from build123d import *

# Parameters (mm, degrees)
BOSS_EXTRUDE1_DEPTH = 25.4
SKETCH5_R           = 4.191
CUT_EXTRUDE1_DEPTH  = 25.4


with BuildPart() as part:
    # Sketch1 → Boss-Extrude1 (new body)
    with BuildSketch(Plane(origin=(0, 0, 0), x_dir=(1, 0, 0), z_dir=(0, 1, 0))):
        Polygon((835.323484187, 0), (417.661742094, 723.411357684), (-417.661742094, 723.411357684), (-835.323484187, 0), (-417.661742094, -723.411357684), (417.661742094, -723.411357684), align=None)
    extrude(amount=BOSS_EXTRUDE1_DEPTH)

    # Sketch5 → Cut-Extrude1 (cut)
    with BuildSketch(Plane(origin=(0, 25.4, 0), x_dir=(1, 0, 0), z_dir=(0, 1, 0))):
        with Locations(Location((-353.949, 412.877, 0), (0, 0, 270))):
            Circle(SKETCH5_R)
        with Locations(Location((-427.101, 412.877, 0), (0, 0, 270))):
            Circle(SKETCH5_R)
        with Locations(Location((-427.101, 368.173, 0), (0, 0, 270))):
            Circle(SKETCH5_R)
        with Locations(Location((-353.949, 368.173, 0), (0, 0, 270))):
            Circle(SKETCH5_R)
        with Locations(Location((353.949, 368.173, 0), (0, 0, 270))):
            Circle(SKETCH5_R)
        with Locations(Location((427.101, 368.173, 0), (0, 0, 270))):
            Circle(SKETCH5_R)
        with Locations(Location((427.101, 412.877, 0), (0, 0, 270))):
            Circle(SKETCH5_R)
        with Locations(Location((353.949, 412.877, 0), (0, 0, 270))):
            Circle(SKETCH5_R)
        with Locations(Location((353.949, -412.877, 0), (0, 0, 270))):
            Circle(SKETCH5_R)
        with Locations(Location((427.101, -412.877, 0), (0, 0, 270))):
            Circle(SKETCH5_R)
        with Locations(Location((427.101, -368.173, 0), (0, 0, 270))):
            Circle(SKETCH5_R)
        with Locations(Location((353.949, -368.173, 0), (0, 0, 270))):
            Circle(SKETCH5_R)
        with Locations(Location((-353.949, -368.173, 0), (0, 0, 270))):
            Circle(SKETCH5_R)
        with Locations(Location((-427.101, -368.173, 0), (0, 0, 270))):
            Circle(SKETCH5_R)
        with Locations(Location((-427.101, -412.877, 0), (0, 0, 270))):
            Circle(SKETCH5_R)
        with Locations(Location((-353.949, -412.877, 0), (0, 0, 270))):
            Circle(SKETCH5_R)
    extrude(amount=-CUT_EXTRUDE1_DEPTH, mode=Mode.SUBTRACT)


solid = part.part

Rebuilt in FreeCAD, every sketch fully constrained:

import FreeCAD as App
import Part
import Sketcher
from FreeCAD import Vector
Q = App.Units.Quantity


def add_polygon(sketch, points):
    """Adds a closed chain of lines whose ends are joined by coincident constraints."""
    first, n = sketch.GeometryCount, len(points)
    for a, b in zip(points, points[1:] + points[:1]):
        sketch.addGeometry(Part.LineSegment(App.Vector(*a, 0), App.Vector(*b, 0)), False)
    for i in range(n):
        sketch.addConstraint(Sketcher.Constraint("Coincident", first + i, 2, first + (i + 1) % n, 1))

doc = App.newDocument("Part")
params = doc.addObject("Spreadsheet::Sheet", "Params")
for row, (alias, value) in enumerate([
    ("pad1_length", "1 in"),
    ("sketch2_diameter", "0.33 in"),
    ("pocket1_length", "1 in"),
], start=1):
    params.set(f"A{row}", alias)
    params.set(f"B{row}", "=" + value)
    params.setAlias(f"B{row}", alias)

body = doc.addObject("PartDesign::Body", "Body")

# Sketch on XZ plane
sketch1 = doc.addObject("Sketcher::SketchObject", "Sketch")
body.addObject(sketch1)
sketch1.AttachmentSupport = (doc.XZ_Plane, [""])
sketch1.MapMode = "FlatFace"
add_polygon(sketch1, [(835.323484, 0), (417.661742, -723.411358), (-417.661742, -723.411358), (-835.323484, 0), (-417.661742, 723.411358), (417.661742, 723.411358)])  # lines 0-5
sketch1.addConstraint(Sketcher.Constraint("Horizontal", 1))
sketch1.addConstraint(Sketcher.Constraint("Horizontal", 4))
sketch1.addConstraint(Sketcher.Constraint("Symmetric", 0, 2, 3, 2, -1, 1))
sketch1.addConstraint(Sketcher.Constraint("Symmetric", 2, 2, 5, 2, -1, 1))
sketch1.addConstraint(Sketcher.Constraint("PointOnObject", 2, 2, -1))
sketch1.addConstraint(Sketcher.Constraint("Parallel", 2, 5))
sketch1.addConstraint(Sketcher.Constraint("Vertical", 1, 2, 3, 2))
sketch1.addConstraint(Sketcher.Constraint("Angle", 0, Q("-120 deg")))
sketch1.addConstraint(Sketcher.Constraint("DistanceX", 1, 2, 1, 1, Q("835.323484 mm")))
sketch1.addConstraint(Sketcher.Constraint("DistanceX", 2, 2, 5, 2, Q("1670.646968 mm")))
pad1 = doc.addObject("PartDesign::Pad", "Pad")
body.addObject(pad1)
pad1.Profile = sketch1
pad1.setExpression("Length", "Params.pad1_length")
pad1.Reversed = True

# Sketch on XZ plane
sketch2 = doc.addObject("Sketcher::SketchObject", "Sketch001")
body.addObject(sketch2)
sketch2.AttachmentSupport = (doc.XZ_Plane, [""])
sketch2.MapMode = "FlatFace"
sketch2.AttachmentOffset = App.Placement(Vector(0, 0, -1 * 25.4), App.Rotation())
sketch2.addGeometry(Part.Circle(Vector(-353.949, -412.877, 0), Vector(0, 0, 1), 4.191), False)
sketch2.addGeometry(Part.Circle(Vector(-427.101, -412.877, 0), Vector(0, 0, 1), 4.191), False)
sketch2.addGeometry(Part.Circle(Vector(-427.101, -368.173, 0), Vector(0, 0, 1), 4.191), False)
sketch2.addGeometry(Part.Circle(Vector(-353.949, -368.173, 0), Vector(0, 0, 1), 4.191), False)
sketch2.addGeometry(Part.Circle(Vector(353.949, -368.173, 0), Vector(0, 0, 1), 4.191), False)
sketch2.addGeometry(Part.Circle(Vector(427.101, -368.173, 0), Vector(0, 0, 1), 4.191), False)
sketch2.addGeometry(Part.Circle(Vector(427.101, -412.877, 0), Vector(0, 0, 1), 4.191), False)
sketch2.addGeometry(Part.Circle(Vector(353.949, -412.877, 0), Vector(0, 0, 1), 4.191), False)
sketch2.addGeometry(Part.Circle(Vector(353.949, 412.877, 0), Vector(0, 0, 1), 4.191), False)
sketch2.addGeometry(Part.Circle(Vector(427.101, 412.877, 0), Vector(0, 0, 1), 4.191), False)
sketch2.addGeometry(Part.Circle(Vector(427.101, 368.173, 0), Vector(0, 0, 1), 4.191), False)
sketch2.addGeometry(Part.Circle(Vector(353.949, 368.173, 0), Vector(0, 0, 1), 4.191), False)
sketch2.addGeometry(Part.Circle(Vector(-353.949, 368.173, 0), Vector(0, 0, 1), 4.191), False)
sketch2.addGeometry(Part.Circle(Vector(-427.101, 368.173, 0), Vector(0, 0, 1), 4.191), False)
sketch2.addGeometry(Part.Circle(Vector(-427.101, 412.877, 0), Vector(0, 0, 1), 4.191), False)
sketch2.addGeometry(Part.Circle(Vector(-353.949, 412.877, 0), Vector(0, 0, 1), 4.191), False)
sketch2.addConstraint(Sketcher.Constraint("Equal", 0, 1))
sketch2.addConstraint(Sketcher.Constraint("Equal", 1, 2))
sketch2.addConstraint(Sketcher.Constraint("Equal", 2, 3))
sketch2.addConstraint(Sketcher.Constraint("Equal", 3, 4))
sketch2.addConstraint(Sketcher.Constraint("Equal", 4, 5))
sketch2.addConstraint(Sketcher.Constraint("Equal", 5, 6))
sketch2.addConstraint(Sketcher.Constraint("Equal", 6, 7))
sketch2.addConstraint(Sketcher.Constraint("Equal", 7, 8))
sketch2.addConstraint(Sketcher.Constraint("Equal", 8, 9))
sketch2.addConstraint(Sketcher.Constraint("Equal", 9, 10))
sketch2.addConstraint(Sketcher.Constraint("Equal", 10, 11))
sketch2.addConstraint(Sketcher.Constraint("Equal", 11, 12))
sketch2.addConstraint(Sketcher.Constraint("Equal", 12, 13))
sketch2.addConstraint(Sketcher.Constraint("Equal", 13, 14))
sketch2.addConstraint(Sketcher.Constraint("Equal", 14, 15))
sketch2.addConstraint(Sketcher.Constraint("Symmetric", 0, 3, 8, 3, -1, 1))
sketch2.addConstraint(Sketcher.Constraint("Symmetric", 1, 3, 9, 3, -1, 1))
sketch2.addConstraint(Sketcher.Constraint("Symmetric", 2, 3, 10, 3, -1, 1))
sketch2.addConstraint(Sketcher.Constraint("Symmetric", 3, 3, 11, 3, -1, 1))
sketch2.addConstraint(Sketcher.Constraint("Symmetric", 4, 3, 12, 3, -1, 1))
sketch2.addConstraint(Sketcher.Constraint("Symmetric", 5, 3, 13, 3, -1, 1))
sketch2.addConstraint(Sketcher.Constraint("Symmetric", 6, 3, 14, 3, -1, 1))
sketch2.addConstraint(Sketcher.Constraint("Symmetric", 7, 3, 15, 3, -1, 1))
sketch2.addConstraint(Sketcher.Constraint("Symmetric", 3, 3, 4, 3, -2))
sketch2.addConstraint(Sketcher.Constraint("Symmetric", 2, 3, 5, 3, -2))
sketch2.addConstraint(Sketcher.Constraint("Symmetric", 1, 3, 6, 3, -2))
sketch2.addConstraint(Sketcher.Constraint("Symmetric", 0, 3, 7, 3, -2))
sketch2.addConstraint(Sketcher.Constraint("Horizontal", 0, 3, 1, 3))
sketch2.addConstraint(Sketcher.Constraint("Horizontal", 2, 3, 3, 3))
sketch2.addConstraint(Sketcher.Constraint("Vertical", 1, 3, 2, 3))
sketch2.addConstraint(Sketcher.Constraint("Vertical", 0, 3, 3, 3))
sketch2.addConstraint(Sketcher.Constraint("Diameter", 0, Q("0.33 in")))
sketch2.addConstraint(Sketcher.Constraint("DistanceX", 1, 3, 0, 3, Q("2.88 in")))
sketch2.addConstraint(Sketcher.Constraint("DistanceY", 1, 3, 2, 3, Q("1.76 in")))
sketch2.addConstraint(Sketcher.Constraint("DistanceX", 3, 3, 4, 3, Q("27.87 in")))
sketch2.addConstraint(Sketcher.Constraint("DistanceY", 4, 3, 8, 3, Q("30.75 in")))
sketch2.setExpression("Constraints[31]", "Params.sketch2_diameter")
pocket1 = doc.addObject("PartDesign::Pocket", "Pocket")
body.addObject(pocket1)
pocket1.Profile = sketch2
pocket1.setExpression("Length", "Params.pocket1_length")
pocket1.Reversed = True

doc.recompute()
